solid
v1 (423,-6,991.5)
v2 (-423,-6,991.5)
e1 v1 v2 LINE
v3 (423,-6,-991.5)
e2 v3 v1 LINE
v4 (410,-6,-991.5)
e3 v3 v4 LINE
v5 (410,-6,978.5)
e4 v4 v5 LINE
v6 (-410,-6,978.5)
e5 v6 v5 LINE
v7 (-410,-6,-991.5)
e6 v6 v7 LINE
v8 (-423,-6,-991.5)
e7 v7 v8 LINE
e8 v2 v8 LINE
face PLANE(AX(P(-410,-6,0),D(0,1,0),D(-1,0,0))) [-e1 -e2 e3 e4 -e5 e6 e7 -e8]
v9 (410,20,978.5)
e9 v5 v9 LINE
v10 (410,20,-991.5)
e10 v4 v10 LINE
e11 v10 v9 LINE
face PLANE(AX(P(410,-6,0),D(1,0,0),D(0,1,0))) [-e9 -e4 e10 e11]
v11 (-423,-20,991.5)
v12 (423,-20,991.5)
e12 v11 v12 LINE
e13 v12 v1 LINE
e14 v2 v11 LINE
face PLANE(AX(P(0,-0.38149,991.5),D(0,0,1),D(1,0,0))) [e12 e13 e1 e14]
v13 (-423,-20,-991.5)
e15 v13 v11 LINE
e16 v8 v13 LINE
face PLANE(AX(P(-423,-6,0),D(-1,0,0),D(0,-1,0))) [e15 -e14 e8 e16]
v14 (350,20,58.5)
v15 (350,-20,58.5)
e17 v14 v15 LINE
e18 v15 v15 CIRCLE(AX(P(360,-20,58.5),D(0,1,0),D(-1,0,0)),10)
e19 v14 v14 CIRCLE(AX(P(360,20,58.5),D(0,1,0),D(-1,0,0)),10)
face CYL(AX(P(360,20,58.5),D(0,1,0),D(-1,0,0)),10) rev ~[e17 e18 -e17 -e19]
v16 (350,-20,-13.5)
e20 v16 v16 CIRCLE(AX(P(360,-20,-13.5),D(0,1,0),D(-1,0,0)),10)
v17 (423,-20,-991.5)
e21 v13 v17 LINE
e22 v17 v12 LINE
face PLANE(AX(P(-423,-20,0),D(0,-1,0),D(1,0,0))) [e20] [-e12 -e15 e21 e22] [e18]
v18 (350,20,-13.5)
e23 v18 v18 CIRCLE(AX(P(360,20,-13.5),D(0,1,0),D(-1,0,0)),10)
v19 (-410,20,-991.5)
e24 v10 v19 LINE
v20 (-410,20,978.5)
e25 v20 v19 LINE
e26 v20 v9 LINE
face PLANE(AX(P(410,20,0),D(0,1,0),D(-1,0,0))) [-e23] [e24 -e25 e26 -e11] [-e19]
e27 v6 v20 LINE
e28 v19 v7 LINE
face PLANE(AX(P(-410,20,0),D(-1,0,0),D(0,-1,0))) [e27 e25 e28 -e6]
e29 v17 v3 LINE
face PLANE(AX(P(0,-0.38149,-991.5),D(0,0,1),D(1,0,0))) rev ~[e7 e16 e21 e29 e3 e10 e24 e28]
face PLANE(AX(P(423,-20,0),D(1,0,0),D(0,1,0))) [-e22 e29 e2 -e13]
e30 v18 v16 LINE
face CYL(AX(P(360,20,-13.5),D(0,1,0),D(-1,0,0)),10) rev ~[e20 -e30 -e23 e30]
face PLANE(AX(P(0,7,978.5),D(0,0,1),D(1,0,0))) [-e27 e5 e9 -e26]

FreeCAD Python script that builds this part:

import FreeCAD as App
import Part
import Sketcher

V = App.Vector
Q = App.Units.Quantity

doc = App.newDocument("Part")
body = doc.addObject("PartDesign::Body", "Body")

# Sketch on XY plane
sketch1 = doc.addObject("Sketcher::SketchObject", "Sketch")
body.addObject(sketch1)
sketch1.AttachmentSupport = (doc.XY_Plane, [""])
sketch1.MapMode = "FlatFace"
sketch1.addGeometry([
    Part.LineSegment(V(-423, -6, 0), V(-423, -20, 0)),  # 0
    Part.LineSegment(V(-423, -20, 0), V(423, -20, 0)),  # 1
    Part.LineSegment(V(423, -20, 0), V(423, -6, 0)),  # 2
    Part.LineSegment(V(423, -6, 0), V(410, -6, 0)),  # 3
    Part.LineSegment(V(410, -6, 0), V(410, 20, 0)),  # 4
    Part.LineSegment(V(410, 20, 0), V(-410, 20, 0)),  # 5
    Part.LineSegment(V(-410, 20, 0), V(-410, -6, 0)),  # 6
    Part.LineSegment(V(-410, -6, 0), V(-423, -6, 0)),  # 7
], False)
sketch1.addConstraint([
    Sketcher.Constraint("Coincident", 0, 2, 1, 1),
    Sketcher.Constraint("Coincident", 1, 2, 2, 1),
    Sketcher.Constraint("Coincident", 2, 2, 3, 1),
    Sketcher.Constraint("Coincident", 3, 2, 4, 1),
    Sketcher.Constraint("Coincident", 4, 2, 5, 1),
    Sketcher.Constraint("Coincident", 5, 2, 6, 1),
    Sketcher.Constraint("Coincident", 6, 2, 7, 1),
    Sketcher.Constraint("Coincident", 7, 2, 0, 1),
    Sketcher.Constraint("Vertical", 0),
    Sketcher.Constraint("Horizontal", 1),
    Sketcher.Constraint("Vertical", 2),
    Sketcher.Constraint("Horizontal", 3),
    Sketcher.Constraint("Vertical", 4),
    Sketcher.Constraint("Horizontal", 5),
    Sketcher.Constraint("Vertical", 6),
    Sketcher.Constraint("Horizontal", 7),
    Sketcher.Constraint("Symmetric", 3, 2, 6, 2, -2),
    Sketcher.Constraint("Equal", 3, 7),
    Sketcher.Constraint("DistanceX", 1, 1, 1, 2, Q("846 mm")),
    Sketcher.Constraint("DistanceX", 3, 2, 3, 1, Q("13 mm")),
    Sketcher.Constraint("DistanceY", 0, 2, 0, 1, Q("14 mm")),
    Sketcher.Constraint("DistanceY", 4, 1, 4, 2, Q("26 mm")),
    Sketcher.Constraint("DistanceY", 0, 2, -1, 1, Q("20 mm")),
])
pad1 = doc.addObject("PartDesign::Pad", "Pad")
body.addObject(pad1)
pad1.Profile = sketch1
pad1.Length = 1983
pad1.Midplane = True

# Sketch on XY plane
sketch2 = doc.addObject("Sketcher::SketchObject", "Sketch001")
body.addObject(sketch2)
sketch2.AttachmentSupport = (doc.XY_Plane, [""])
sketch2.MapMode = "FlatFace"
sketch2.AttachmentOffset = App.Placement(V(0, 0, 991.5), App.Rotation())
sketch2.addGeometry([
    Part.LineSegment(V(-410, 20, 0), V(-410, -6, 0)),
    Part.LineSegment(V(-410, -6, 0), V(410, -6, 0)),
    Part.LineSegment(V(410, -6, 0), V(410, 20, 0)),
    Part.LineSegment(V(410, 20, 0), V(-410, 20, 0)),
], False)
sketch2.addConstraint([
    Sketcher.Constraint("Coincident", 0, 2, 1, 1),
    Sketcher.Constraint("Coincident", 1, 2, 2, 1),
    Sketcher.Constraint("Coincident", 2, 2, 3, 1),
    Sketcher.Constraint("Coincident", 3, 2, 0, 1),
    Sketcher.Constraint("Vertical", 0),
    Sketcher.Constraint("Horizontal", 1),
    Sketcher.Constraint("Vertical", 2),
    Sketcher.Constraint("Horizontal", 3),
    Sketcher.Constraint("DistanceX", 1, 1, 1, 2, Q("820 mm")),
    Sketcher.Constraint("DistanceY", 0, 2, 0, 1, Q("26 mm")),
    Sketcher.Constraint("DistanceX", 0, 2, -1, 1, Q("410 mm")),
    Sketcher.Constraint("DistanceY", 0, 2, -1, 1, Q("6 mm")),
])
pocket1 = doc.addObject("PartDesign::Pocket", "Pocket")
body.addObject(pocket1)
pocket1.Profile = sketch2
pocket1.Length = 13

# Sketch on XZ plane
sketch3 = doc.addObject("Sketcher::SketchObject", "Sketch002")
body.addObject(sketch3)
sketch3.AttachmentSupport = (doc.XZ_Plane, [""])
sketch3.MapMode = "FlatFace"
sketch3.AttachmentOffset = App.Placement(V(0, 0, -20), App.Rotation())
sketch3.addGeometry([
    Part.Circle(V(360, 58, 0), V(0, 0, 1), 10),
    Part.Circle(V(360, -14, 0), V(0, 0, 1), 10),
], False)
sketch3.addConstraint([
    Sketcher.Constraint("Equal", 0, 1),
    Sketcher.Constraint("Vertical", 0, 3, 1, 3),
    Sketcher.Constraint("Diameter", 0, Q("20 mm")),
    Sketcher.Constraint("DistanceX", -1, 1, 0, 3, Q("360 mm")),
    Sketcher.Constraint("DistanceY", 1, 3, 0, 3, Q("72 mm")),
    Sketcher.Constraint("DistanceY", -1, 1, 0, 3, Q("58.5 mm")),
])
pocket2 = doc.addObject("PartDesign::Pocket", "Pocket001")
body.addObject(pocket2)
pocket2.Profile = sketch3
pocket2.Type = "ThroughAll"
pocket2.Reversed = True

doc.recompute()
